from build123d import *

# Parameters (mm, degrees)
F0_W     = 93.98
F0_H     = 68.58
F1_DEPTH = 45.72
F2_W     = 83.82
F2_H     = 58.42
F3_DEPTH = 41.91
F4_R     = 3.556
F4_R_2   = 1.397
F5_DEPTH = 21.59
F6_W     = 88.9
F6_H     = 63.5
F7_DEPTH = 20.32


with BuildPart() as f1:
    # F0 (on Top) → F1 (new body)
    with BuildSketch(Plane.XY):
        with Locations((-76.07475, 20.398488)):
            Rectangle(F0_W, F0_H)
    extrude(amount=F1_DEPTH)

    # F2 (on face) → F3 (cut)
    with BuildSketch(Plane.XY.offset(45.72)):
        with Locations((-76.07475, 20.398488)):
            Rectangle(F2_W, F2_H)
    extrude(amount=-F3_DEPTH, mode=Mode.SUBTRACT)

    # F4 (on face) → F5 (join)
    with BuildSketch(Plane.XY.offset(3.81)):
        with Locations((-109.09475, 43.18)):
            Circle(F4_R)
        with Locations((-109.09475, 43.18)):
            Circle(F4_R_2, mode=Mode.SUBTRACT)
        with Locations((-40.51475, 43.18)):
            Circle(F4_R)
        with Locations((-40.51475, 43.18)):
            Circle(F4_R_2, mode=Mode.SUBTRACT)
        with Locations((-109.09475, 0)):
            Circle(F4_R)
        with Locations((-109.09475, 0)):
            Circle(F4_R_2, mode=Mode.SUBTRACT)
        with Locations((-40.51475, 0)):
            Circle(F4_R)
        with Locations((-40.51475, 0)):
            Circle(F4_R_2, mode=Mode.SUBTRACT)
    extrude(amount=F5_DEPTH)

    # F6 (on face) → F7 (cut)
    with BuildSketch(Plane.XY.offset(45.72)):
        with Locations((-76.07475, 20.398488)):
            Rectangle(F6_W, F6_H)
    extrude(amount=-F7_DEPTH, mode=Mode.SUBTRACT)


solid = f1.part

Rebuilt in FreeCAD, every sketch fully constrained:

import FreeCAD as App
import Part
import Sketcher

V = App.Vector
Q = App.Units.Quantity

doc = App.newDocument("Part")
body = doc.addObject("PartDesign::Body", "Body")

# Sketch on XY plane
sketch1 = body.newObject("Sketcher::SketchObject", "Sketch")
sketch1.AttachmentSupport = (doc.getObject("XY_Plane"), [""])
sketch1.MapMode = "FlatFace"
sketch1.addGeometry(Part.LineSegment(V(-123, 55, 0), V(-123, -14, 0)), False)
sketch1.addGeometry(Part.LineSegment(V(-123, -14, 0), V(-29, -14, 0)), False)
sketch1.addGeometry(Part.LineSegment(V(-29, -14, 0), V(-29, 55, 0)), False)
sketch1.addGeometry(Part.LineSegment(V(-29, 55, 0), V(-123, 55, 0)), False)
sketch1.addConstraint(Sketcher.Constraint("Coincident", 0, 2, 1, 1))
sketch1.addConstraint(Sketcher.Constraint("Coincident", 1, 2, 2, 1))
sketch1.addConstraint(Sketcher.Constraint("Coincident", 2, 2, 3, 1))
sketch1.addConstraint(Sketcher.Constraint("Coincident", 3, 2, 0, 1))
sketch1.addConstraint(Sketcher.Constraint("Vertical", 0))
sketch1.addConstraint(Sketcher.Constraint("Horizontal", 1))
sketch1.addConstraint(Sketcher.Constraint("Vertical", 2))
sketch1.addConstraint(Sketcher.Constraint("Horizontal", 3))
sketch1.addConstraint(Sketcher.Constraint("DistanceX", 1, 1, 1, 2, Q("3.7 in")))
sketch1.addConstraint(Sketcher.Constraint("DistanceY", 0, 2, 0, 1, Q("2.7 in")))
sketch1.addConstraint(Sketcher.Constraint("DistanceX", 0, 2, -1, 1, Q("123.06475 mm")))
sketch1.addConstraint(Sketcher.Constraint("DistanceY", 0, 2, -1, 1, Q("13.891512 mm")))
pad1 = body.newObject("PartDesign::Pad", "Pad")
pad1.Profile = sketch1
pad1.Length = Q("1.8 in")

# Sketch on XY plane
sketch2 = body.newObject("Sketcher::SketchObject", "Sketch001")
sketch2.AttachmentSupport = (doc.getObject("XY_Plane"), [""])
sketch2.MapMode = "FlatFace"
sketch2.AttachmentOffset = App.Placement(V(0, 0, 1.8 * 25.4), App.Rotation())
sketch2.addGeometry(Part.LineSegment(V(-118, 50, 0), V(-118, -9, 0)), False)
sketch2.addGeometry(Part.LineSegment(V(-118, -9, 0), V(-34, -9, 0)), False)
sketch2.addGeometry(Part.LineSegment(V(-34, -9, 0), V(-34, 50, 0)), False)
sketch2.addGeometry(Part.LineSegment(V(-34, 50, 0), V(-118, 50, 0)), False)
sketch2.addConstraint(Sketcher.Constraint("Coincident", 0, 2, 1, 1))
sketch2.addConstraint(Sketcher.Constraint("Coincident", 1, 2, 2, 1))
sketch2.addConstraint(Sketcher.Constraint("Coincident", 2, 2, 3, 1))
sketch2.addConstraint(Sketcher.Constraint("Coincident", 3, 2, 0, 1))
sketch2.addConstraint(Sketcher.Constraint("Vertical", 0))
sketch2.addConstraint(Sketcher.Constraint("Horizontal", 1))
sketch2.addConstraint(Sketcher.Constraint("Vertical", 2))
sketch2.addConstraint(Sketcher.Constraint("Horizontal", 3))
sketch2.addConstraint(Sketcher.Constraint("DistanceX", 1, 1, 1, 2, Q("3.3 in")))
sketch2.addConstraint(Sketcher.Constraint("DistanceY", 0, 2, 0, 1, Q("2.3 in")))
sketch2.addConstraint(Sketcher.Constraint("DistanceX", 0, 2, -1, 1, Q("117.98475 mm")))
sketch2.addConstraint(Sketcher.Constraint("DistanceY", 0, 2, -1, 1, Q("8.811512 mm")))
pocket1 = body.newObject("PartDesign::Pocket", "Pocket")
pocket1.Profile = sketch2
pocket1.Length = Q("1.65 in")

# Sketch on XY plane
sketch3 = body.newObject("Sketcher::SketchObject", "Sketch002")
sketch3.AttachmentSupport = (doc.getObject("XY_Plane"), [""])
sketch3.MapMode = "FlatFace"
sketch3.AttachmentOffset = App.Placement(V(0, 0, 0.15 * 25.4), App.Rotation())
sketch3.addGeometry(Part.Circle(V(-109.1, 43.2, 0), V(0, 0, 1), 3.6), False)
sketch3.addGeometry(Part.Circle(V(-109.1, 43.2, 0), V(0, 0, 1), 1.4), False)
sketch3.addGeometry(Part.Circle(V(-40.5, 43.2, 0), V(0, 0, 1), 3.6), False)
sketch3.addGeometry(Part.Circle(V(-40.5, 43.2, 0), V(0, 0, 1), 1.4), False)
sketch3.addGeometry(Part.Circle(V(-109.1, 0, 0), V(0, 0, 1), 3.6), False)
sketch3.addGeometry(Part.Circle(V(-109.1, 0, 0), V(0, 0, 1), 1.4), False)
sketch3.addGeometry(Part.Circle(V(-40.5, 0, 0), V(0, 0, 1), 3.6), False)
sketch3.addGeometry(Part.Circle(V(-40.5, 0, 0), V(0, 0, 1), 1.4), False)
sketch3.addConstraint(Sketcher.Constraint("Coincident", 1, 3, 0, 3))
sketch3.addConstraint(Sketcher.Constraint("Coincident", 3, 3, 2, 3))
sketch3.addConstraint(Sketcher.Constraint("Coincident", 5, 3, 4, 3))
sketch3.addConstraint(Sketcher.Constraint("Coincident", 7, 3, 6, 3))
sketch3.addConstraint(Sketcher.Constraint("Equal", 0, 2))
sketch3.addConstraint(Sketcher.Constraint("Equal", 1, 3))
sketch3.addConstraint(Sketcher.Constraint("Equal", 2, 4))
sketch3.addConstraint(Sketcher.Constraint("Equal", 3, 5))
sketch3.addConstraint(Sketcher.Constraint("Equal", 4, 6))
sketch3.addConstraint(Sketcher.Constraint("Equal", 5, 7))
sketch3.addConstraint(Sketcher.Constraint("PointOnObject", 4, 3, -1))
sketch3.addConstraint(Sketcher.Constraint("PointOnObject", 6, 3, -1))
sketch3.addConstraint(Sketcher.Constraint("Horizontal", 1, 3, 2, 3))
sketch3.addConstraint(Sketcher.Constraint("Vertical", 1, 3, 4, 3))
sketch3.addConstraint(Sketcher.Constraint("Vertical", 3, 3, 6, 3))
sketch3.addConstraint(Sketcher.Constraint("Diameter", 0, Q("0.28 in")))
sketch3.addConstraint(Sketcher.Constraint("Diameter", 1, Q("0.11 in")))
sketch3.addConstraint(Sketcher.Constraint("DistanceY", -1, 1, 0, 3, Q("1.7 in")))
sketch3.addConstraint(Sketcher.Constraint("DistanceX", 0, 3, 2, 3, Q("2.7 in")))
sketch3.addConstraint(Sketcher.Constraint("DistanceX", 0, 3, -1, 1, Q("109.09475 mm")))
pad2 = body.newObject("PartDesign::Pad", "Pad001")
pad2.Profile = sketch3
pad2.Length = Q("0.85 in")

# Sketch on XY plane
sketch4 = body.newObject("Sketcher::SketchObject", "Sketch003")
sketch4.AttachmentSupport = (doc.getObject("XY_Plane"), [""])
sketch4.MapMode = "FlatFace"
sketch4.AttachmentOffset = App.Placement(V(0, 0, 1.8 * 25.4), App.Rotation())
sketch4.addGeometry(Part.LineSegment(V(-121, 52, 0), V(-121, -11, 0)), False)
sketch4.addGeometry(Part.LineSegment(V(-121, -11, 0), V(-32, -11, 0)), False)
sketch4.addGeometry(Part.LineSegment(V(-32, -11, 0), V(-32, 52, 0)), False)
sketch4.addGeometry(Part.LineSegment(V(-32, 52, 0), V(-121, 52, 0)), False)
sketch4.addConstraint(Sketcher.Constraint("Coincident", 0, 2, 1, 1))
sketch4.addConstraint(Sketcher.Constraint("Coincident", 1, 2, 2, 1))
sketch4.addConstraint(Sketcher.Constraint("Coincident", 2, 2, 3, 1))
sketch4.addConstraint(Sketcher.Constraint("Coincident", 3, 2, 0, 1))
sketch4.addConstraint(Sketcher.Constraint("Vertical", 0))
sketch4.addConstraint(Sketcher.Constraint("Horizontal", 1))
sketch4.addConstraint(Sketcher.Constraint("Vertical", 2))
sketch4.addConstraint(Sketcher.Constraint("Horizontal", 3))
sketch4.addConstraint(Sketcher.Constraint("DistanceX", 1, 1, 1, 2, Q("3.5 in")))
sketch4.addConstraint(Sketcher.Constraint("DistanceY", 0, 2, 0, 1, Q("2.5 in")))
sketch4.addConstraint(Sketcher.Constraint("DistanceX", 0, 2, -1, 1, Q("120.52475 mm")))
sketch4.addConstraint(Sketcher.Constraint("DistanceY", 0, 2, -1, 1, Q("11.351512 mm")))
pocket2 = body.newObject("PartDesign::Pocket", "Pocket001")
pocket2.Profile = sketch4
pocket2.Length = Q("0.8 in")

doc.recompute()
